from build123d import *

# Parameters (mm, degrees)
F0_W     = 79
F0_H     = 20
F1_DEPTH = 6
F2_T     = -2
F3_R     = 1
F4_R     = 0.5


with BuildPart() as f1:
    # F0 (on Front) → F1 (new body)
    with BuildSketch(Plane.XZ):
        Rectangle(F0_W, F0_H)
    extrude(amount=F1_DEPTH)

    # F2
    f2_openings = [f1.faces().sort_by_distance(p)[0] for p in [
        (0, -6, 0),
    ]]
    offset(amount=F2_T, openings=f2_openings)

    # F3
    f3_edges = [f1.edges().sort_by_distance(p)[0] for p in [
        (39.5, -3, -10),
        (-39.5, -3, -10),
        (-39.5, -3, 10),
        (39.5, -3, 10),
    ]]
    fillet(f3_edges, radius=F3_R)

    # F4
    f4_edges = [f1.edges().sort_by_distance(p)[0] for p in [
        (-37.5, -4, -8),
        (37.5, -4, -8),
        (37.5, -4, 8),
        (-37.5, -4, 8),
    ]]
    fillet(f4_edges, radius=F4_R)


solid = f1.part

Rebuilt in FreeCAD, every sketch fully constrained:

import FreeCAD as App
import Part
import Sketcher
from FreeCAD import Vector
Q = App.Units.Quantity


def edges_at(feature, points):
    """Names of the edges that pass closest to the given points."""
    edges = feature.Shape.Edges
    near = lambda p: min(range(len(edges)), key=lambda i: edges[i].distToShape(Part.Vertex(*p))[0])
    return sorted({f"Edge{near(p) + 1}" for p in points})


def faces_at(feature, points):
    """Names of the faces that lie closest to the given points."""
    faces = feature.Shape.Faces
    near = lambda p: min(range(len(faces)), key=lambda i: faces[i].distToShape(Part.Vertex(*p))[0])
    return sorted({f"Face{near(p) + 1}" for p in points})


def add_polygon(sketch, points):
    """Adds a closed chain of lines whose ends are joined by coincident constraints."""
    first, n = sketch.GeometryCount, len(points)
    for a, b in zip(points, points[1:] + points[:1]):
        sketch.addGeometry(Part.LineSegment(App.Vector(*a, 0), App.Vector(*b, 0)), False)
    for i in range(n):
        sketch.addConstraint(Sketcher.Constraint("Coincident", first + i, 2, first + (i + 1) % n, 1))

doc = App.newDocument("Part")
body = doc.addObject("PartDesign::Body", "Body")

# Sketch on XZ plane
sketch1 = body.newObject("Sketcher::SketchObject", "Sketch")
sketch1.AttachmentSupport = (doc.getObject("XZ_Plane"), [""])
sketch1.MapMode = "FlatFace"
add_polygon(sketch1, [(-40, 10), (-40, -10), (40, -10), (40, 10)])  # lines 0-3
sketch1.addConstraint([
    Sketcher.Constraint("Vertical", 0),
    Sketcher.Constraint("Horizontal", 1),
    Sketcher.Constraint("Vertical", 2),
    Sketcher.Constraint("Horizontal", 3),
    Sketcher.Constraint("Symmetric", 0, 2, 2, 2, -1, 1),
    Sketcher.Constraint("DistanceX", 1, 1, 1, 2, Q("79 mm")),
    Sketcher.Constraint("DistanceY", 0, 2, 0, 1, Q("20 mm")),
])
pad1 = body.newObject("PartDesign::Pad", "Pad")
pad1.Profile = sketch1
pad1.Length = 6
doc.recompute()

thickness = body.newObject("PartDesign::Thickness", "Thickness")
thickness.Base = (pad1, faces_at(pad1, [(0, -6, 0)]))
thickness.Value = 2
thickness.Reversed = True
thickness.Join = "Arc"
doc.recompute()

fillet = body.newObject("PartDesign::Fillet", "Fillet")
fillet.Base = (thickness, edges_at(thickness, [
    (39.5, -3, -10),
    (-39.5, -3, -10),
    (-39.5, -3, 10),
    (39.5, -3, 10),
]))
fillet.Radius = 1
doc.recompute()

fillet2 = body.newObject("PartDesign::Fillet", "Fillet001")
fillet2.Base = (fillet, edges_at(fillet, [
    (-37.5, -4, -8),
    (37.5, -4, -8),
    (37.5, -4, 8),
    (-37.5, -4, 8),
]))
fillet2.Radius = 0.5

doc.recompute()
